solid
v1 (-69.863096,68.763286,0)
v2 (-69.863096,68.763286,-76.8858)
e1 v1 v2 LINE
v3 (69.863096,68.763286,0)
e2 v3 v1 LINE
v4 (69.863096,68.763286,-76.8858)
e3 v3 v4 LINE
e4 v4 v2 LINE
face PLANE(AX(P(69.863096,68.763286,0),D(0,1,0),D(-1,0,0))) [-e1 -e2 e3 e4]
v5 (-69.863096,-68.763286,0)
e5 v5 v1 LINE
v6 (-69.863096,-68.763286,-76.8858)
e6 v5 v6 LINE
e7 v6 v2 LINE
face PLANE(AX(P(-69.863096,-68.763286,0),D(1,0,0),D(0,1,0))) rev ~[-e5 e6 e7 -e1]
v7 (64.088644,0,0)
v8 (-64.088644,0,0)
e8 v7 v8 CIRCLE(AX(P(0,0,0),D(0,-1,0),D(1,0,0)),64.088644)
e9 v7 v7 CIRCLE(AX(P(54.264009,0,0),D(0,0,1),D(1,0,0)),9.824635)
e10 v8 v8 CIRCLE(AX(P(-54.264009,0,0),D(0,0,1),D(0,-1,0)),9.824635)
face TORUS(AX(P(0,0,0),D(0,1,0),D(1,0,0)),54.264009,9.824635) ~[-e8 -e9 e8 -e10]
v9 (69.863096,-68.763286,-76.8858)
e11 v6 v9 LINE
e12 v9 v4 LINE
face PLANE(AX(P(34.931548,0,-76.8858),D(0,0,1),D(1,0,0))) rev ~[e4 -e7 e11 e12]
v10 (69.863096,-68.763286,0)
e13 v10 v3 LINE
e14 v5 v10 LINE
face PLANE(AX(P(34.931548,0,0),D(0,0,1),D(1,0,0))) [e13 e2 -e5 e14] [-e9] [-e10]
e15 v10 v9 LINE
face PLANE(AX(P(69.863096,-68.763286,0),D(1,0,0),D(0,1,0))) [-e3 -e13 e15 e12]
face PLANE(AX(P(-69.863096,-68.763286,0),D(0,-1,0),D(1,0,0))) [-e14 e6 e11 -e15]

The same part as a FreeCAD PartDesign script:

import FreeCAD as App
import Part
import Sketcher
Q = App.Units.Quantity

doc = App.newDocument("Part")
body = doc.addObject("PartDesign::Body", "Body")

# Sketch on XY plane
sketch1 = doc.addObject("Sketcher::SketchObject", "Sketch")
body.addObject(sketch1)
sketch1.AttachmentSupport = (doc.XY_Plane, [""])
sketch1.MapMode = "FlatFace"
sketch1.addGeometry(Part.Circle(App.Vector(54.264009, 0, 0), App.Vector(0, 0, 1), 9.824635), False)
sketch1.addConstraint([
    Sketcher.Constraint("PointOnObject", 0, 3, -1),
    Sketcher.Constraint("Diameter", 0, Q("19.64927 mm")),
    Sketcher.Constraint("DistanceX", -1, 1, 0, 3, Q("54.264009 mm")),
])
revolution = doc.addObject("PartDesign::Revolution", "Revolution")
body.addObject(revolution)
revolution.Profile = sketch1
revolution.ReferenceAxis = (sketch1, ["V_Axis"])
revolution.Angle = 360

# Sketch on XY plane
sketch2 = doc.addObject("Sketcher::SketchObject", "Sketch001")
body.addObject(sketch2)
sketch2.AttachmentSupport = (doc.XY_Plane, [""])
sketch2.MapMode = "FlatFace"
sketch2.addGeometry([
    Part.LineSegment(App.Vector(69.863096, -68.763286, 0), App.Vector(69.863096, 68.763286, 0)),
    Part.LineSegment(App.Vector(69.863096, 68.763286, 0), App.Vector(-69.863096, 68.763286, 0)),
    Part.LineSegment(App.Vector(-69.863096, 68.763286, 0), App.Vector(-69.863096, -68.763286, 0)),
    Part.LineSegment(App.Vector(-69.863096, -68.763286, 0), App.Vector(69.863096, -68.763286, 0)),
], False)
sketch2.addConstraint([
    Sketcher.Constraint("Coincident", 0, 2, 1, 1),
    Sketcher.Constraint("Coincident", 1, 2, 2, 1),
    Sketcher.Constraint("Coincident", 2, 2, 3, 1),
    Sketcher.Constraint("Coincident", 3, 2, 0, 1),
    Sketcher.Constraint("Vertical", 0),
    Sketcher.Constraint("Horizontal", 1),
    Sketcher.Constraint("Vertical", 2),
    Sketcher.Constraint("Horizontal", 3),
    Sketcher.Constraint("Symmetric", 0, 2, 2, 2, -1, 1),
    Sketcher.Constraint("DistanceX", 1, 2, 1, 1, Q("139.726192 mm")),
    Sketcher.Constraint("DistanceY", 0, 1, 0, 2, Q("137.526572 mm")),
])
pad1 = doc.addObject("PartDesign::Pad", "Pad")
body.addObject(pad1)
pad1.Profile = sketch2
pad1.Length = Q("3.027 in")
pad1.Reversed = True

doc.recompute()
